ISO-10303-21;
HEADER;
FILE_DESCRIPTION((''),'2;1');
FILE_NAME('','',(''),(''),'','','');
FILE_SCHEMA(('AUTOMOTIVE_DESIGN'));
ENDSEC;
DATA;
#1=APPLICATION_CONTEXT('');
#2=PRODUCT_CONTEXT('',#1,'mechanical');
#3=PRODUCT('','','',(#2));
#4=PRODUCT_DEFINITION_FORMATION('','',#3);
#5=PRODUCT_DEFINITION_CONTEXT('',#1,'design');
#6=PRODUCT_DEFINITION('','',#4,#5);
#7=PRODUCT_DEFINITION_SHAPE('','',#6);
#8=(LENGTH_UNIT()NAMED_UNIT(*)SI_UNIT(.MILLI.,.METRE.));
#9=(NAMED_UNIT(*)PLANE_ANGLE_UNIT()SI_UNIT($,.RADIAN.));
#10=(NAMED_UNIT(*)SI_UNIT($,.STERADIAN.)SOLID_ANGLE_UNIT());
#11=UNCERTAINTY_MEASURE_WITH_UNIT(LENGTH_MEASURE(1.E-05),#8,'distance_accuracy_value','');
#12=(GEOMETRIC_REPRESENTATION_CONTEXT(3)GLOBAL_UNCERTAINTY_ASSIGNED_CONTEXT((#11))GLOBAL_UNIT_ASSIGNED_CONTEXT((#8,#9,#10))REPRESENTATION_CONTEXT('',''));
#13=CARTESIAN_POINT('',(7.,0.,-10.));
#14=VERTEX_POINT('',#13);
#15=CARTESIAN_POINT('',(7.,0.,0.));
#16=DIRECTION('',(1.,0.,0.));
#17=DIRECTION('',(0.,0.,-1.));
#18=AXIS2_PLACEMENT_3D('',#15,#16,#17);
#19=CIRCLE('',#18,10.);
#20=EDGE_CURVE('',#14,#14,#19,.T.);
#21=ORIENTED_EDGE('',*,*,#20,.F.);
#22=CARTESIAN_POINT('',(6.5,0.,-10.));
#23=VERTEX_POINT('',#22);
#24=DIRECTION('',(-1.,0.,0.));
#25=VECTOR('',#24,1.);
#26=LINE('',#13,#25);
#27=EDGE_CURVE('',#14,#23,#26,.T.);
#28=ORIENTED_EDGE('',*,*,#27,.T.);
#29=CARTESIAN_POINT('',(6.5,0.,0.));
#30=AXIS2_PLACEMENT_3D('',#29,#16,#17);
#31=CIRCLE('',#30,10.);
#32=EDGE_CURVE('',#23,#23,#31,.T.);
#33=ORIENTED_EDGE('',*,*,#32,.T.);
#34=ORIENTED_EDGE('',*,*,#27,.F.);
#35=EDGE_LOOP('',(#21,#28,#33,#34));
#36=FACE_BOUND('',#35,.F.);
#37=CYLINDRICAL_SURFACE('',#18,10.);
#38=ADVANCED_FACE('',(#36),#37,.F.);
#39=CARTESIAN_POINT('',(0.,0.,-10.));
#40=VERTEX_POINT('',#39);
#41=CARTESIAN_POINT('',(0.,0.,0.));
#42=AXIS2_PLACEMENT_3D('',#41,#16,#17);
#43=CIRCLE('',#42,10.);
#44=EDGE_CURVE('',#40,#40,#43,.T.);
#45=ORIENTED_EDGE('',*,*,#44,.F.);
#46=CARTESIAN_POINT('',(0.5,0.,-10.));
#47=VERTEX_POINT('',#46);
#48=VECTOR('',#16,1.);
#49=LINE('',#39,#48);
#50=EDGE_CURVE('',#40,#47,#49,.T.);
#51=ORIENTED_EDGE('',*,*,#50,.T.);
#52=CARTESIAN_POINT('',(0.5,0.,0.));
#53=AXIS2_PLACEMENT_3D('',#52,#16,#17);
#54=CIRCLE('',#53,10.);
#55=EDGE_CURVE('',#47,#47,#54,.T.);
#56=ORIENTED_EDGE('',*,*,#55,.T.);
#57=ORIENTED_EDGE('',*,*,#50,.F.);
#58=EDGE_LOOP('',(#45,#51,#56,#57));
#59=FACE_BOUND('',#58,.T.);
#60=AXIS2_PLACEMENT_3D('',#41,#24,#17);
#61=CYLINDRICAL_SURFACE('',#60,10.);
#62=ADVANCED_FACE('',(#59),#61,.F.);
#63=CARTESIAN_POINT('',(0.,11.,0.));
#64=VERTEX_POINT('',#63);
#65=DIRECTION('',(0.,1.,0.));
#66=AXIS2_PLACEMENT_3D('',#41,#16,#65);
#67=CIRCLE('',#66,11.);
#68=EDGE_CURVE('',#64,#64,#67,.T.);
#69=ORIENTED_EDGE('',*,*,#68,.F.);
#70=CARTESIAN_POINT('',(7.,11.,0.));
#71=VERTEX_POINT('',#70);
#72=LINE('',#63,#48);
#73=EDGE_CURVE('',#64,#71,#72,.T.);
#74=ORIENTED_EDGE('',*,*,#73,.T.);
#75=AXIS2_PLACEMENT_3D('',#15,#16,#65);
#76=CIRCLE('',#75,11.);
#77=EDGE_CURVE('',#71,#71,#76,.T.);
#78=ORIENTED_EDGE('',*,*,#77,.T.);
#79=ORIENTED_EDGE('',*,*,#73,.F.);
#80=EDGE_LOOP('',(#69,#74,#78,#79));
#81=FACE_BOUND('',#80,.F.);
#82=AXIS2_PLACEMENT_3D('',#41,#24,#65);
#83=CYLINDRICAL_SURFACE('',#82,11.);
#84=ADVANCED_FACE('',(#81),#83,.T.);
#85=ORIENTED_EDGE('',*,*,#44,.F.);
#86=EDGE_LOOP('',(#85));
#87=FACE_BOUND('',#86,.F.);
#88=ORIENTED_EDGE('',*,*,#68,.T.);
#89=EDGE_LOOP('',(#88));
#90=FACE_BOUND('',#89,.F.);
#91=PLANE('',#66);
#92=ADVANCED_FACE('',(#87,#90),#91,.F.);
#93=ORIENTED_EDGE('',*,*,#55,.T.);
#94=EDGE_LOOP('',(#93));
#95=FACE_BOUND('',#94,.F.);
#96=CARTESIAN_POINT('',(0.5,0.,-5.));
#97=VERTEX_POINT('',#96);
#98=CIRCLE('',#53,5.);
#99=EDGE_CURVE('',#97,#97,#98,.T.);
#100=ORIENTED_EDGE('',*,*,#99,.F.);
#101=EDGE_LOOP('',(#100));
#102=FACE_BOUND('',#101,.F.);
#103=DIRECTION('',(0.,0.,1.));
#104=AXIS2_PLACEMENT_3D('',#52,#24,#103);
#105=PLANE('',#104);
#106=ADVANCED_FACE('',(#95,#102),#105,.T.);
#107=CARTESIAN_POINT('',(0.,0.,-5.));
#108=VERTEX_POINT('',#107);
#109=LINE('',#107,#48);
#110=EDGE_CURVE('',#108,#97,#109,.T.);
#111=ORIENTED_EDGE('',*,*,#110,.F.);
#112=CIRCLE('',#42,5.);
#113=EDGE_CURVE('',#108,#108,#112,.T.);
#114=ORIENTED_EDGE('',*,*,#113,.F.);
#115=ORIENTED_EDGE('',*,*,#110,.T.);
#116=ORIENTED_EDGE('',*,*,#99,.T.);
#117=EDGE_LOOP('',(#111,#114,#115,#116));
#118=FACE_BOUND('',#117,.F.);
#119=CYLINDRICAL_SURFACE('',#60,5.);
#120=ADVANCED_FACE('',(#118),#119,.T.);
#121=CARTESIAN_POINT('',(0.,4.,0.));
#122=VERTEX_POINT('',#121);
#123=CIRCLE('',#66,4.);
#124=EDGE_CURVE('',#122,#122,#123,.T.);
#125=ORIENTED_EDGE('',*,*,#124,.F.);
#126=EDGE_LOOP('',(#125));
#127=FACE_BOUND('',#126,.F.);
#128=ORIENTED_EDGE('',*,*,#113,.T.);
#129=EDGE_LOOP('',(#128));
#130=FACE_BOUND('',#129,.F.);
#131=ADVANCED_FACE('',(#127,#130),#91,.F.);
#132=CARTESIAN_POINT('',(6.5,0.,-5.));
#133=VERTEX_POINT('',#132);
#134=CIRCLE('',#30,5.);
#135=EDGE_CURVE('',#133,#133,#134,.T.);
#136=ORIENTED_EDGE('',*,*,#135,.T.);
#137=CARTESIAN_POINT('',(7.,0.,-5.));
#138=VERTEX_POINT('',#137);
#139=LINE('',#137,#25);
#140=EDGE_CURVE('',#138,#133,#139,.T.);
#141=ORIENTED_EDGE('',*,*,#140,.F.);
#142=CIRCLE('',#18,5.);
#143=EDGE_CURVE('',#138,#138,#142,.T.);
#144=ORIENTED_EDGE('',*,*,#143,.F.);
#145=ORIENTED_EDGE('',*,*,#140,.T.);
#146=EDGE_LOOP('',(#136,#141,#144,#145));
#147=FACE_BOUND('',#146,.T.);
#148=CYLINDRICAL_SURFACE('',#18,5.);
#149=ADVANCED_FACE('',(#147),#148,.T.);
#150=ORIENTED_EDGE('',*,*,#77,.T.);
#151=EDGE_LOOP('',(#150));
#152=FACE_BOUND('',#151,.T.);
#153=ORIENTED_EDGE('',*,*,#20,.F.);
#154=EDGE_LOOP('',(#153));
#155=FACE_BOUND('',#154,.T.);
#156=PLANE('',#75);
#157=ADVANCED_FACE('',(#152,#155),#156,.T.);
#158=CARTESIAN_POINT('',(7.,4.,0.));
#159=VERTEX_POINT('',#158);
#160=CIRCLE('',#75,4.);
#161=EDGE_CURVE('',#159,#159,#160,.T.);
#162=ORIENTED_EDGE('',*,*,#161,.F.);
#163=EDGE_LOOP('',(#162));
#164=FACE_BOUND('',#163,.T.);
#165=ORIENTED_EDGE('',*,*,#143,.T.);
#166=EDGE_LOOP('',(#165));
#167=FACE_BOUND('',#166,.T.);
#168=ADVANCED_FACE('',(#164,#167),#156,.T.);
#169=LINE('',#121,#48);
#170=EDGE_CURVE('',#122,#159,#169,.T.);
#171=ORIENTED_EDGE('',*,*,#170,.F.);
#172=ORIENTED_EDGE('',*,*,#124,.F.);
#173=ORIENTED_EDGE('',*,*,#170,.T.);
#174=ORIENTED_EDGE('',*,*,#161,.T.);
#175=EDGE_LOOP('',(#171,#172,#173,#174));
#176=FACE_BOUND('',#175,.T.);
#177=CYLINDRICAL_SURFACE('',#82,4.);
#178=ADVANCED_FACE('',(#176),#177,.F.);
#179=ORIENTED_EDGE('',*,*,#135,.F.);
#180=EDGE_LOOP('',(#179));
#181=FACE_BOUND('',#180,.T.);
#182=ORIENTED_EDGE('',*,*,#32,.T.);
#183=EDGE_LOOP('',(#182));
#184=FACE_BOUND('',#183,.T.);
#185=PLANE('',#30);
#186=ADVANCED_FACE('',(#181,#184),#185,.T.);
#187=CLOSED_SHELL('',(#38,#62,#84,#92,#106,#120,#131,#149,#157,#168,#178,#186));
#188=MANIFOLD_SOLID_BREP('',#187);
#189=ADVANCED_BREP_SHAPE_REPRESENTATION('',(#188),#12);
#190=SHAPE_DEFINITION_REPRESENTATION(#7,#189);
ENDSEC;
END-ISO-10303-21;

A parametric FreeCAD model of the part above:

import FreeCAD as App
import Part
import Sketcher
from FreeCAD import Vector

doc = App.newDocument("Part")
params = doc.addObject("Spreadsheet::Sheet", "Params")
for row, (alias, value) in enumerate([
    ("sketch1_diameter", "22 mm"),
    ("sketch1_diameter2", "8 mm"),
    ("pad1_length", "7 mm"),
    ("sketch2_diameter", "20 mm"),
    ("sketch2_diameter2", "10 mm"),
    ("pocket1_length", "0.5 mm"),
], start=1):
    params.set(f"A{row}", alias)
    params.set(f"B{row}", "=" + value)
    params.setAlias(f"B{row}", alias)

body = doc.addObject("PartDesign::Body", "Body")

# Sketch on YZ plane
sketch1 = body.newObject("Sketcher::SketchObject", "Sketch")
sketch1.AttachmentSupport = (doc.getObject("YZ_Plane"), [""])
sketch1.MapMode = "FlatFace"
sketch1.addGeometry([
    Part.Circle(Vector(0, 0, 0), Vector(0, 0, 1), 11),
    Part.Circle(Vector(0, 0, 0), Vector(0, 0, 1), 4),
], False)
sketch1.addConstraint([
    Sketcher.Constraint("Coincident", 0, 3, -1, 1),
    Sketcher.Constraint("Coincident", 1, 3, -1, 1),
    Sketcher.Constraint("Diameter", 0, 22.0),
    Sketcher.Constraint("Diameter", 1, 8.0),
])
sketch1.setExpression("Constraints[2]", "Params.sketch1_diameter")
sketch1.setExpression("Constraints[3]", "Params.sketch1_diameter2")
pad1 = body.newObject("PartDesign::Pad", "Pad")
pad1.Profile = sketch1
pad1.setExpression("Length", "Params.pad1_length")

# Sketch on YZ plane
sketch2 = body.newObject("Sketcher::SketchObject", "Sketch001")
sketch2.AttachmentSupport = (doc.getObject("YZ_Plane"), [""])
sketch2.MapMode = "FlatFace"
sketch2.AttachmentOffset = App.Placement(Vector(0, 0, 7), App.Rotation())
sketch2.addGeometry([
    Part.Circle(Vector(0, 0, 0), Vector(0, 0, 1), 10),
    Part.Circle(Vector(0, 0, 0), Vector(0, 0, 1), 5),
], False)
sketch2.addConstraint([
    Sketcher.Constraint("Coincident", 0, 3, -1, 1),
    Sketcher.Constraint("Coincident", 1, 3, -1, 1),
    Sketcher.Constraint("Diameter", 0, 20.0),
    Sketcher.Constraint("Diameter", 1, 10.0),
])
sketch2.setExpression("Constraints[2]", "Params.sketch2_diameter")
sketch2.setExpression("Constraints[3]", "Params.sketch2_diameter2")
pocket1 = body.newObject("PartDesign::Pocket", "Pocket")
pocket1.Profile = sketch2
pocket1.setExpression("Length", "Params.pocket1_length")
doc.recompute()

datumplane = body.newObject("PartDesign::Plane", "DatumPlane")
datumplane.AttachmentSupport = (doc.getObject("YZ_Plane"), [""])
datumplane.MapMode = "FlatFace"
datumplane.AttachmentOffset = App.Placement(Vector(0, 0, 3.5), App.Rotation())
mirrored = body.newObject("PartDesign::Mirrored", "Mirrored")
mirrored.Originals = [pocket1]
mirrored.MirrorPlane = (datumplane, [""])
body.Tip = mirrored

doc.recompute()
